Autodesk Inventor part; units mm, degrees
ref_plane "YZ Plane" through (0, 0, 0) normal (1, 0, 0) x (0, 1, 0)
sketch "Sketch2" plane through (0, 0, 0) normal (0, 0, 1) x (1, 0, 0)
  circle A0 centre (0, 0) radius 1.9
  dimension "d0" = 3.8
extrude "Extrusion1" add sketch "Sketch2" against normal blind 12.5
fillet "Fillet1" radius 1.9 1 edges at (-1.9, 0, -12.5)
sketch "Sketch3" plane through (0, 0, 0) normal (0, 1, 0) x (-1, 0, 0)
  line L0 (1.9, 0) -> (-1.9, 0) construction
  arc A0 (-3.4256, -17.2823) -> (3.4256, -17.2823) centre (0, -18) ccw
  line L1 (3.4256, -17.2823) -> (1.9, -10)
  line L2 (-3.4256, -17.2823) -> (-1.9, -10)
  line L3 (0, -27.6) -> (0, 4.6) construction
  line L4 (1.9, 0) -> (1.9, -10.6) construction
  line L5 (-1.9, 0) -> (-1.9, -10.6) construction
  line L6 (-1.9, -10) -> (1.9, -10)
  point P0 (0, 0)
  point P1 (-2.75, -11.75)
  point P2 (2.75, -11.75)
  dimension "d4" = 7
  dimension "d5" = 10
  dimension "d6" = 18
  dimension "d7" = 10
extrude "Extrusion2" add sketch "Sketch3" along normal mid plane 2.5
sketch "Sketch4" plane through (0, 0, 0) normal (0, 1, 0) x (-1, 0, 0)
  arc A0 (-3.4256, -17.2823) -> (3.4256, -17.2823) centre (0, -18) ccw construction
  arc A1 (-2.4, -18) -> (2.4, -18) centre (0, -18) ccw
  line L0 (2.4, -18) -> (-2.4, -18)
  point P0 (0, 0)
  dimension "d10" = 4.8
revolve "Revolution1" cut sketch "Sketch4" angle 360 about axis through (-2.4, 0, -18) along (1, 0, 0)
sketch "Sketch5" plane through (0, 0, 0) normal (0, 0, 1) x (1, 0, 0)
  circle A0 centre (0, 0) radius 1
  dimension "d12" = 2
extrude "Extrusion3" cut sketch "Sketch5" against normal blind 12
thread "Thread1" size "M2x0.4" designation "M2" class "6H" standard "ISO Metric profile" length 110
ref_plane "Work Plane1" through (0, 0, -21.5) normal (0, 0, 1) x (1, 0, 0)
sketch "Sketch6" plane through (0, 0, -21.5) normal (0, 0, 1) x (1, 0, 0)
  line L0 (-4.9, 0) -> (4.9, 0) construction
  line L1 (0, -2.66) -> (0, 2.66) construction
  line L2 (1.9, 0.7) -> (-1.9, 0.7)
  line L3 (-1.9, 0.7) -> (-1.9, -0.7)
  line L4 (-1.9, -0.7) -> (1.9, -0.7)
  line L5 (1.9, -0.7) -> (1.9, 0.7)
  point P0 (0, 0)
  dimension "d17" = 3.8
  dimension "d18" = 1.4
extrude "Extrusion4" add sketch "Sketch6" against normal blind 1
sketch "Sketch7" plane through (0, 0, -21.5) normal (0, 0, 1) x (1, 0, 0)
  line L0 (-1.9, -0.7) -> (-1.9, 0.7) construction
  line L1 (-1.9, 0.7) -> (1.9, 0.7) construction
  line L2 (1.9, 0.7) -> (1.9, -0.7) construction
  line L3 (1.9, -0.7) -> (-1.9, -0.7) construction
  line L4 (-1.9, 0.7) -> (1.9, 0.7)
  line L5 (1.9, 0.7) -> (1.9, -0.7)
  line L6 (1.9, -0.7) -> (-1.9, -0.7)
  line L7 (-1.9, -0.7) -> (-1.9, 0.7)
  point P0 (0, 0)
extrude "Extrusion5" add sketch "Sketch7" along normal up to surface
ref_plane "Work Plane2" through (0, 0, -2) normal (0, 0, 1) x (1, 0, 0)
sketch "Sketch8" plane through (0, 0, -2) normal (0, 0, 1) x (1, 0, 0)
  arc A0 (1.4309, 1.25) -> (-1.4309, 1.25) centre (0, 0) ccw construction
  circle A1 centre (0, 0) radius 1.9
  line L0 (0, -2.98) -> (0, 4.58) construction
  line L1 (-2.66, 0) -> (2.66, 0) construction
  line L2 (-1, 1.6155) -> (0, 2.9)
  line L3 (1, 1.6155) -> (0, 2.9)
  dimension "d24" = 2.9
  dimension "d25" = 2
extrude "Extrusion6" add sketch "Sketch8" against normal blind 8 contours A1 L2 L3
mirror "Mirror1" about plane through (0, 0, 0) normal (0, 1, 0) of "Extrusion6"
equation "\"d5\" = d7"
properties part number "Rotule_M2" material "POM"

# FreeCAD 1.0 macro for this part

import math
import FreeCAD as App
import Part
import Sketcher
from FreeCAD import Vector
Q = App.Units.Quantity


def edges_at(feature, points):
    """Names of the edges that pass closest to the given points."""
    edges = feature.Shape.Edges
    near = lambda p: min(range(len(edges)), key=lambda i: edges[i].distToShape(Part.Vertex(*p))[0])
    return sorted({f"Edge{near(p) + 1}" for p in points})


def add_polygon(sketch, points):
    """Adds a closed chain of lines whose ends are joined by coincident constraints."""
    first, n = sketch.GeometryCount, len(points)
    for a, b in zip(points, points[1:] + points[:1]):
        sketch.addGeometry(Part.LineSegment(App.Vector(*a, 0), App.Vector(*b, 0)), False)
    for i in range(n):
        sketch.addConstraint(Sketcher.Constraint("Coincident", first + i, 2, first + (i + 1) % n, 1))

doc = App.newDocument("Part")
params = doc.addObject("Spreadsheet::Sheet", "Params")
for row, (alias, value) in enumerate([
    ("sketch1_diameter", "3.8 mm"),
    ("pad1_length", "12.5 mm"),
    ("fillet_radius", "1.9 mm"),
    ("sketch2_radius", "3.5 mm"),
    ("sketch2_width", "3.8 mm"),
    ("pad2_length", "2.5 mm"),
    ("sketch3_radius", "2.4 mm"),
    ("groove_angle", "360 deg"),
    ("sketch4_diameter", "2 mm"),
    ("pocket1_length", "12 mm"),
    ("sketch5_width", "3.8 mm"),
    ("sketch5_height", "1.4 mm"),
    ("pad3_length", "1 mm"),
    ("sketch6_width", "3.8 mm"),
    ("sketch6_height", "1.4 mm"),
    ("pad4_length", "0.5606 mm"),
    ("sketch7_radius", "1.9 mm"),
    ("pad5_length", "8 mm"),
], start=1):
    params.set(f"A{row}", alias)
    params.set(f"B{row}", "=" + value)
    params.setAlias(f"B{row}", alias)

body = doc.addObject("PartDesign::Body", "Body")
body.AllowCompound = True

# Sketch on XY plane
sketch1 = doc.addObject("Sketcher::SketchObject", "Sketch")
body.addObject(sketch1)
sketch1.AttachmentSupport = (doc.XY_Plane, [""])
sketch1.MapMode = "FlatFace"
sketch1.addGeometry(Part.Circle(Vector(0, 0, 0), Vector(0, 0, 1), 1.9), False)
sketch1.addConstraint(Sketcher.Constraint("Coincident", 0, 3, -1, 1))
sketch1.addConstraint(Sketcher.Constraint("Diameter", 0, Q("3.8 mm")))
sketch1.setExpression("Constraints[1]", "Params.sketch1_diameter")
pad1 = doc.addObject("PartDesign::Pad", "Pad")
body.addObject(pad1)
pad1.Profile = sketch1
pad1.setExpression("Length", "Params.pad1_length")
pad1.Reversed = True
doc.recompute()

fillet = doc.addObject("PartDesign::Fillet", "Fillet")
body.addObject(fillet)
fillet.Base = (pad1, edges_at(pad1, [(-1.9, 0, -12.5)]))
fillet.setExpression("Radius", "Params.fillet_radius")

# Sketch on XZ plane
sketch2 = doc.addObject("Sketcher::SketchObject", "Sketch001")
body.addObject(sketch2)
sketch2.AttachmentSupport = (doc.XZ_Plane, [""])
sketch2.MapMode = "FlatFace"
sketch2.addGeometry(Part.LineSegment(Vector(1.9, -10, 0), Vector(3.4256, -17.2823, 0)), False)
sketch2.addGeometry(Part.ArcOfCircle(Part.Circle(Vector(0, -18, 0), Vector(0, 0, 1), 3.499976), math.radians(168.167072), math.radians(371.832928)), False)
sketch2.addGeometry(Part.LineSegment(Vector(-3.4256, -17.2823, 0), Vector(-1.9, -10, 0)), False)
sketch2.addGeometry(Part.LineSegment(Vector(-1.9, -10, 0), Vector(1.9, -10, 0)), False)
sketch2.addConstraint(Sketcher.Constraint("Tangent", 0, 2, 1, 2))
sketch2.addConstraint(Sketcher.Constraint("Tangent", 1, 1, 2, 1))
sketch2.addConstraint(Sketcher.Constraint("Coincident", 2, 2, 3, 1))
sketch2.addConstraint(Sketcher.Constraint("Coincident", 3, 2, 0, 1))
sketch2.addConstraint(Sketcher.Constraint("Horizontal", 3))
sketch2.addConstraint(Sketcher.Constraint("Symmetric", 0, 2, 1, 1, -2))
sketch2.addConstraint(Sketcher.Constraint("Radius", 1, Q("3.5 mm")))
sketch2.addConstraint(Sketcher.Constraint("DistanceY", 1, 3, -1, 1, Q("18 mm")))
sketch2.addConstraint(Sketcher.Constraint("DistanceY", 2, 2, -1, 1, Q("10 mm")))
sketch2.addConstraint(Sketcher.Constraint("DistanceX", 3, 1, 3, 2, Q("3.8 mm")))
sketch2.setExpression("Constraints[6]", "Params.sketch2_radius")
sketch2.setExpression("Constraints[9]", "Params.sketch2_width")
pad2 = doc.addObject("PartDesign::Pad", "Pad001")
body.addObject(pad2)
pad2.Profile = sketch2
pad2.setExpression("Length", "Params.pad2_length")
pad2.Midplane = True

# Sketch on XZ plane
sketch3 = doc.addObject("Sketcher::SketchObject", "Sketch002")
body.addObject(sketch3)
sketch3.AttachmentSupport = (doc.XZ_Plane, [""])
sketch3.MapMode = "FlatFace"
sketch3.addGeometry(Part.LineSegment(Vector(-2.4, -18, 0), Vector(2.4, -18, 0)), False)
sketch3.addGeometry(Part.ArcOfCircle(Part.Circle(Vector(0, -18, 0), Vector(0, 0, 1), 2.4), math.radians(180), math.radians(360)), False)
sketch3.addGeometry(Part.LineSegment(Vector(-2.4, -18, 0), Vector(2.4, -18, 0)), True)  # axis
sketch3.addConstraint(Sketcher.Constraint("Coincident", 0, 1, 1, 1))
sketch3.addConstraint(Sketcher.Constraint("Coincident", 1, 2, 0, 2))
sketch3.addConstraint(Sketcher.Constraint("Horizontal", 0))
sketch3.addConstraint(Sketcher.Constraint("Horizontal", 2))
sketch3.addConstraint(Sketcher.Constraint("Coincident", 2, 1, 0, 1))
sketch3.addConstraint(Sketcher.Constraint("PointOnObject", 1, 3, -2))
sketch3.addConstraint(Sketcher.Constraint("Horizontal", 1, 3, 0, 1))
sketch3.addConstraint(Sketcher.Constraint("Equal", 0, 2))
sketch3.addConstraint(Sketcher.Constraint("Radius", 1, Q("2.4 mm")))
sketch3.addConstraint(Sketcher.Constraint("DistanceY", 1, 3, -1, 1, Q("18 mm")))
sketch3.setExpression("Constraints[8]", "Params.sketch3_radius")
groove = doc.addObject("PartDesign::Groove", "Groove")
body.addObject(groove)
groove.Profile = sketch3
groove.ReferenceAxis = (sketch3, ["Axis0"])
groove.setExpression("Angle", "Params.groove_angle")

# Sketch on XY plane
sketch4 = doc.addObject("Sketcher::SketchObject", "Sketch003")
body.addObject(sketch4)
sketch4.AttachmentSupport = (doc.XY_Plane, [""])
sketch4.MapMode = "FlatFace"
sketch4.addGeometry(Part.Circle(Vector(0, 0, 0), Vector(0, 0, 1), 1), False)
sketch4.addConstraint(Sketcher.Constraint("Coincident", 0, 3, -1, 1))
sketch4.addConstraint(Sketcher.Constraint("Diameter", 0, Q("2 mm")))
sketch4.setExpression("Constraints[1]", "Params.sketch4_diameter")
pocket1 = doc.addObject("PartDesign::Pocket", "Pocket")
body.addObject(pocket1)
pocket1.Profile = sketch4
pocket1.setExpression("Length", "Params.pocket1_length")

# Sketch on XY plane
sketch5 = doc.addObject("Sketcher::SketchObject", "Sketch004")
body.addObject(sketch5)
sketch5.AttachmentSupport = (doc.XY_Plane, [""])
sketch5.MapMode = "FlatFace"
sketch5.AttachmentOffset = App.Placement(Vector(0, 0, -21.5), App.Rotation())
add_polygon(sketch5, [(1.9, -0.7), (1.9, 0.7), (-1.9, 0.7), (-1.9, -0.7)])  # lines 0-3
sketch5.addConstraint(Sketcher.Constraint("Vertical", 0))
sketch5.addConstraint(Sketcher.Constraint("Horizontal", 1))
sketch5.addConstraint(Sketcher.Constraint("Vertical", 2))
sketch5.addConstraint(Sketcher.Constraint("Horizontal", 3))
sketch5.addConstraint(Sketcher.Constraint("Symmetric", 0, 2, 2, 2, -1, 1))
sketch5.addConstraint(Sketcher.Constraint("DistanceX", 1, 2, 1, 1, Q("3.8 mm")))
sketch5.addConstraint(Sketcher.Constraint("DistanceY", 0, 1, 0, 2, Q("1.4 mm")))
sketch5.setExpression("Constraints[9]", "Params.sketch5_width")
sketch5.setExpression("Constraints[10]", "Params.sketch5_height")
pad3 = doc.addObject("PartDesign::Pad", "Pad002")
body.addObject(pad3)
pad3.Profile = sketch5
pad3.setExpression("Length", "Params.pad3_length")
pad3.Reversed = True

# Sketch on XY plane
sketch6 = doc.addObject("Sketcher::SketchObject", "Sketch005")
body.addObject(sketch6)
sketch6.AttachmentSupport = (doc.XY_Plane, [""])
sketch6.MapMode = "FlatFace"
sketch6.AttachmentOffset = App.Placement(Vector(0, 0, -21.5), App.Rotation())
add_polygon(sketch6, [(1.9, 0.7), (-1.9, 0.7), (-1.9, -0.7), (1.9, -0.7)])  # lines 0-3
sketch6.addConstraint(Sketcher.Constraint("Horizontal", 0))
sketch6.addConstraint(Sketcher.Constraint("Vertical", 1))
sketch6.addConstraint(Sketcher.Constraint("Horizontal", 2))
sketch6.addConstraint(Sketcher.Constraint("Vertical", 3))
sketch6.addConstraint(Sketcher.Constraint("Symmetric", 0, 2, 2, 2, -1, 1))
sketch6.addConstraint(Sketcher.Constraint("DistanceX", 0, 2, 0, 1, Q("3.8 mm")))
sketch6.addConstraint(Sketcher.Constraint("DistanceY", 1, 2, 1, 1, Q("1.4 mm")))
sketch6.setExpression("Constraints[9]", "Params.sketch6_width")
sketch6.setExpression("Constraints[10]", "Params.sketch6_height")
pad4 = doc.addObject("PartDesign::Pad", "Pad003")
body.addObject(pad4)
pad4.Profile = sketch6
pad4.setExpression("Length", "Params.pad4_length")

# Sketch on XY plane
sketch7 = doc.addObject("Sketcher::SketchObject", "Sketch006")
body.addObject(sketch7)
sketch7.AttachmentSupport = (doc.XY_Plane, [""])
sketch7.MapMode = "FlatFace"
sketch7.AttachmentOffset = App.Placement(Vector(0, 0, -2), App.Rotation())
sketch7.addGeometry(Part.ArcOfCircle(Part.Circle(Vector(0, 0, 0), Vector(0, 0, 1), 1.9), math.radians(58.242351), math.radians(121.757649)), False)
sketch7.addGeometry(Part.LineSegment(Vector(1, 1.6155, 0), Vector(0, 2.9, 0)), False)
sketch7.addGeometry(Part.LineSegment(Vector(0, 2.9, 0), Vector(-1, 1.6155, 0)), False)
sketch7.addConstraint(Sketcher.Constraint("Coincident", 0, 1, 1, 1))
sketch7.addConstraint(Sketcher.Constraint("Coincident", 1, 2, 2, 1))
sketch7.addConstraint(Sketcher.Constraint("Coincident", 2, 2, 0, 2))
sketch7.addConstraint(Sketcher.Constraint("Coincident", 0, 3, -1, 1))
sketch7.addConstraint(Sketcher.Constraint("PointOnObject", 1, 2, -2))
sketch7.addConstraint(Sketcher.Constraint("Horizontal", 0, 1, 2, 2))
sketch7.addConstraint(Sketcher.Constraint("DistanceX", 2, 2, 0, 1, Q("2 mm")))
sketch7.addConstraint(Sketcher.Constraint("DistanceY", -1, 1, 1, 2, Q("2.9 mm")))
sketch7.addConstraint(Sketcher.Constraint("Radius", 0, Q("1.9 mm")))
sketch7.setExpression("Constraints[8]", "Params.sketch7_radius")
pad5 = doc.addObject("PartDesign::Pad", "Pad004")
body.addObject(pad5)
pad5.Profile = sketch7
pad5.setExpression("Length", "Params.pad5_length")
pad5.Reversed = True
doc.recompute()

mirrored = doc.addObject("PartDesign::Mirrored", "Mirrored")
body.addObject(mirrored)
mirrored.Originals = [pad5]
mirrored.MirrorPlane = (doc.XZ_Plane, [""])
body.Tip = mirrored

doc.recompute()
